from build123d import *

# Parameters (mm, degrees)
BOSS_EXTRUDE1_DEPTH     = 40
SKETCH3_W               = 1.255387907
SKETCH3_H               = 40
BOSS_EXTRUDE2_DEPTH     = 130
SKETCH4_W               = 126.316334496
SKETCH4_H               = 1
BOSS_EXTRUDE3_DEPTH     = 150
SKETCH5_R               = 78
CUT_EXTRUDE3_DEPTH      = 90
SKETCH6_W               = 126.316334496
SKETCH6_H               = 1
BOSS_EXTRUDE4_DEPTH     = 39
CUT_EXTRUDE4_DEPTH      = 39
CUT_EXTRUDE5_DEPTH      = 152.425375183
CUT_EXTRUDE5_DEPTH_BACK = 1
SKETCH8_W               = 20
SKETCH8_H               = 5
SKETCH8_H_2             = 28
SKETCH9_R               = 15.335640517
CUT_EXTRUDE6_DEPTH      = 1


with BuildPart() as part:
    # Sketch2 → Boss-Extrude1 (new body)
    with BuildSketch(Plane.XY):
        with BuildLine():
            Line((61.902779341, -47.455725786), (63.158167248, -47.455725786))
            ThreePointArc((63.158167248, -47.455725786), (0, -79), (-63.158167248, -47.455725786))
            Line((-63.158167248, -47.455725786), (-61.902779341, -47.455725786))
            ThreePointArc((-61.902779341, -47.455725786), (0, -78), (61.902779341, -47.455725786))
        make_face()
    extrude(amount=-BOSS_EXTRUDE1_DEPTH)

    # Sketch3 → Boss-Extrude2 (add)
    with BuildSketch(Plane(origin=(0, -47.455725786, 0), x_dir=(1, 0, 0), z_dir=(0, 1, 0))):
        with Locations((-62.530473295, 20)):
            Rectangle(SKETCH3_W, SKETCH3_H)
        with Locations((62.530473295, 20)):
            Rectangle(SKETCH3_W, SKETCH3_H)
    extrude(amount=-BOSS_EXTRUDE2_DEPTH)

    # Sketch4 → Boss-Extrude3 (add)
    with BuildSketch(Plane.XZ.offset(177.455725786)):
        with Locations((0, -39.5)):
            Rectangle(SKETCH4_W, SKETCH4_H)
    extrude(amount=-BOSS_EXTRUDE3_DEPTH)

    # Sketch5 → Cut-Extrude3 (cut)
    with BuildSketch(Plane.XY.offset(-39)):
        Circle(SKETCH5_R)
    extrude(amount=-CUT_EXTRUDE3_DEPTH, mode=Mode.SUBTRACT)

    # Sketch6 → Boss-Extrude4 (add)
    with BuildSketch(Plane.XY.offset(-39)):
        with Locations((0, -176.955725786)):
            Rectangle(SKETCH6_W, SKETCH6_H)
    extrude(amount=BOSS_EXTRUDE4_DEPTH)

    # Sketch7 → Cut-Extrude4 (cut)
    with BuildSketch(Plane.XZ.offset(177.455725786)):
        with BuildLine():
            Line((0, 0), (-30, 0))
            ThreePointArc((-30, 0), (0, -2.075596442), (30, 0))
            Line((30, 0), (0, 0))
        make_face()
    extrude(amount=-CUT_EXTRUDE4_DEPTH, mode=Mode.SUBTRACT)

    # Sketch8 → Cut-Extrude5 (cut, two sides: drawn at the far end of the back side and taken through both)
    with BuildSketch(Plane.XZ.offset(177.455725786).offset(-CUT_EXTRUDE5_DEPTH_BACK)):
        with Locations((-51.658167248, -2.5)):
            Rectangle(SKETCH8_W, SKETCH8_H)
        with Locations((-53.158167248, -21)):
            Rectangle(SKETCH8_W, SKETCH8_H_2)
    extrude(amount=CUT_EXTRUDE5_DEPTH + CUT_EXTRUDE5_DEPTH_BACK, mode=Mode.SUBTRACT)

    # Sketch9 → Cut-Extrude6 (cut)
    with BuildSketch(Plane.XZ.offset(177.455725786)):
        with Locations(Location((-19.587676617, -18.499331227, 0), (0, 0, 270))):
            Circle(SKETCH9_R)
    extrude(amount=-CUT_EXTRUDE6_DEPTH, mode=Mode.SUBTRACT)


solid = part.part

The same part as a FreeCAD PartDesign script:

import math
import FreeCAD as App
import Part
import Sketcher


def add_polygon(sketch, points):
    """Adds a closed chain of lines whose ends are joined by coincident constraints."""
    first, n = sketch.GeometryCount, len(points)
    for a, b in zip(points, points[1:] + points[:1]):
        sketch.addGeometry(Part.LineSegment(App.Vector(*a, 0), App.Vector(*b, 0)), False)
    for i in range(n):
        sketch.addConstraint(Sketcher.Constraint("Coincident", first + i, 2, first + (i + 1) % n, 1))

doc = App.newDocument("Part")
body = doc.addObject("PartDesign::Body", "Body")

# Sketch on XY plane
sketch1 = body.newObject("Sketcher::SketchObject", "Sketch")
sketch1.AttachmentSupport = (doc.getObject("XY_Plane"), [""])
sketch1.MapMode = "FlatFace"
sketch1.addGeometry([
    Part.LineSegment(App.Vector(63.158167, -47.455726, 0), App.Vector(61.902779, -47.455726, 0)),
    Part.ArcOfCircle(Part.Circle(App.Vector(0, 0, 0), App.Vector(0, 0, 1), 78), math.radians(-142.525611), math.radians(-37.474389)),
    Part.LineSegment(App.Vector(-61.902779, -47.455726, 0), App.Vector(-63.158167, -47.455726, 0)),
    Part.ArcOfCircle(Part.Circle(App.Vector(0, 0, 0), App.Vector(0, 0, 1), 79), math.radians(-143.079566), math.radians(-36.920434)),
], False)
sketch1.addConstraint([
    Sketcher.Constraint("Coincident", 0, 2, 1, 2),
    Sketcher.Constraint("Coincident", 1, 1, 2, 1),
    Sketcher.Constraint("Coincident", 2, 2, 3, 1),
    Sketcher.Constraint("Coincident", 3, 2, 0, 1),
    Sketcher.Constraint("Horizontal", 0),
    Sketcher.Constraint("Horizontal", 2),
    Sketcher.Constraint("Coincident", 1, 3, -1, 1),
    Sketcher.Constraint("Coincident", 3, 3, -1, 1),
    Sketcher.Constraint("Horizontal", 0, 2, 1, 1),
    Sketcher.Constraint("Radius", 1, 78.0),
    Sketcher.Constraint("Radius", 3, 79.0),
    Sketcher.Constraint("DistanceX", 0, 2, 0, 1, 1.255388),
])
pad1 = body.newObject("PartDesign::Pad", "Pad")
pad1.Profile = sketch1
pad1.Length = 40
pad1.Reversed = True

# Sketch on XZ plane
sketch2 = body.newObject("Sketcher::SketchObject", "Sketch001")
sketch2.AttachmentSupport = (doc.getObject("XZ_Plane"), [""])
sketch2.MapMode = "FlatFace"
sketch2.AttachmentOffset = App.Placement(App.Vector(0, 0, 47.455726), App.Rotation())
add_polygon(sketch2, [(-63.2, -40), (-63.2, 0), (-61.9, 0), (-61.9, -40)])  # lines 0-3
add_polygon(sketch2, [(61.9, -40), (61.9, 0), (63.2, 0), (63.2, -40)])  # lines 4-7
sketch2.addConstraint([
    Sketcher.Constraint("Vertical", 0),
    Sketcher.Constraint("Horizontal", 1),
    Sketcher.Constraint("Vertical", 2),
    Sketcher.Constraint("Horizontal", 3),
    Sketcher.Constraint("Vertical", 4),
    Sketcher.Constraint("Horizontal", 5),
    Sketcher.Constraint("Vertical", 6),
    Sketcher.Constraint("Horizontal", 7),
    Sketcher.Constraint("Symmetric", 1, 2, 4, 2, -1, 1),
    Sketcher.Constraint("Symmetric", 0, 2, 5, 2, -2),
    Sketcher.Constraint("Horizontal", 3, 2, 6, 2),
    Sketcher.Constraint("DistanceY", 0, 1, 0, 2, 40.0),
    Sketcher.Constraint("DistanceX", 1, 1, 1, 2, 1.255388),
    Sketcher.Constraint("DistanceX", 1, 2, -1, 1, 61.902779),
])
pad2 = body.newObject("PartDesign::Pad", "Pad001")
pad2.Profile = sketch2
pad2.Length = 130

# Sketch on XZ plane
sketch3 = body.newObject("Sketcher::SketchObject", "Sketch002")
sketch3.AttachmentSupport = (doc.getObject("XZ_Plane"), [""])
sketch3.MapMode = "FlatFace"
sketch3.AttachmentOffset = App.Placement(App.Vector(0, 0, 177.455726), App.Rotation())
add_polygon(sketch3, [(-63.2, -39), (-63.2, -40), (63.2, -40), (63.2, -39)])  # lines 0-3
sketch3.addConstraint([
    Sketcher.Constraint("Vertical", 0),
    Sketcher.Constraint("Horizontal", 1),
    Sketcher.Constraint("Vertical", 2),
    Sketcher.Constraint("Horizontal", 3),
    Sketcher.Constraint("DistanceY", 0, 2, 0, 1, 1.0),
    Sketcher.Constraint("DistanceY", 0, 2, -1, 1, 40.0),
    Sketcher.Constraint("DistanceX", 1, 1, 1, 2, 126.316334),
    Sketcher.Constraint("DistanceX", 0, 2, -1, 1, 63.158167),
])
pad3 = body.newObject("PartDesign::Pad", "Pad002")
pad3.Profile = sketch3
pad3.Length = 150
pad3.Reversed = True

# Sketch on XY plane
sketch4 = body.newObject("Sketcher::SketchObject", "Sketch003")
sketch4.AttachmentSupport = (doc.getObject("XY_Plane"), [""])
sketch4.MapMode = "FlatFace"
sketch4.AttachmentOffset = App.Placement(App.Vector(0, 0, -39), App.Rotation())
sketch4.addGeometry(Part.Circle(App.Vector(0, 0, 0), App.Vector(0, 0, 1), 78), False)
sketch4.addConstraint([
    Sketcher.Constraint("Coincident", 0, 3, -1, 1),
    Sketcher.Constraint("Diameter", 0, 156.0),
])
pocket1 = body.newObject("PartDesign::Pocket", "Pocket")
pocket1.Profile = sketch4
pocket1.Length = 90

# Sketch on XY plane
sketch5 = body.newObject("Sketcher::SketchObject", "Sketch004")
sketch5.AttachmentSupport = (doc.getObject("XY_Plane"), [""])
sketch5.MapMode = "FlatFace"
sketch5.AttachmentOffset = App.Placement(App.Vector(0, 0, -39), App.Rotation())
add_polygon(sketch5, [(-63.2, -176.5), (-63.2, -177.5), (63.2, -177.5), (63.2, -176.5)])  # lines 0-3
sketch5.addConstraint([
    Sketcher.Constraint("Vertical", 0),
    Sketcher.Constraint("Horizontal", 1),
    Sketcher.Constraint("Vertical", 2),
    Sketcher.Constraint("Horizontal", 3),
    Sketcher.Constraint("DistanceY", 0, 2, 0, 1, 1.0),
    Sketcher.Constraint("DistanceX", 1, 1, 1, 2, 126.316334),
    Sketcher.Constraint("DistanceX", 0, 2, -1, 1, 63.158167),
    Sketcher.Constraint("DistanceY", 0, 2, -1, 1, 177.455726),
])
pad4 = body.newObject("PartDesign::Pad", "Pad003")
pad4.Profile = sketch5
pad4.Length = 39

# Sketch on XZ plane
sketch6 = body.newObject("Sketcher::SketchObject", "Sketch005")
sketch6.AttachmentSupport = (doc.getObject("XZ_Plane"), [""])
sketch6.MapMode = "FlatFace"
sketch6.AttachmentOffset = App.Placement(App.Vector(0, 0, 177.455726), App.Rotation())
sketch6.addGeometry([
    Part.ArcOfCircle(Part.Circle(App.Vector(0, 216, 0), App.Vector(0, 0, 1), 218), math.radians(-97.92), math.radians(-82.08)),
    Part.LineSegment(App.Vector(30, 0, 0), App.Vector(-30, 0, 0)),
], False)
sketch6.addConstraint([
    Sketcher.Constraint("Coincident", 0, 1, 1, 2),
    Sketcher.Constraint("Coincident", 1, 1, 0, 2),
    Sketcher.Constraint("Horizontal", 1),
    Sketcher.Constraint("Symmetric", 0, 1, 1, 1, -1, 1),
    Sketcher.Constraint("DistanceX", 1, 2, 1, 1, 60.0),
    Sketcher.Constraint("Radius", 0, 217.842949),
])
pocket2 = body.newObject("PartDesign::Pocket", "Pocket001")
pocket2.Profile = sketch6
pocket2.Length = 39

# Sketch on XZ plane
sketch7 = body.newObject("Sketcher::SketchObject", "Sketch006")
sketch7.AttachmentSupport = (doc.getObject("XZ_Plane"), [""])
sketch7.MapMode = "FlatFace"
sketch7.AttachmentOffset = App.Placement(App.Vector(0, 0, 177.455726), App.Rotation())
add_polygon(sketch7, [(-62, 0), (-62, -5), (-42, -5), (-42, 0)])  # lines 0-3
add_polygon(sketch7, [(-63, -7), (-63, -35), (-43, -35), (-43, -7)])  # lines 4-7
sketch7.addConstraint([
    Sketcher.Constraint("Vertical", 0),
    Sketcher.Constraint("Horizontal", 1),
    Sketcher.Constraint("Vertical", 2),
    Sketcher.Constraint("Horizontal", 3),
    Sketcher.Constraint("Vertical", 4),
    Sketcher.Constraint("Horizontal", 5),
    Sketcher.Constraint("Vertical", 6),
    Sketcher.Constraint("Horizontal", 7),
    Sketcher.Constraint("PointOnObject", 2, 2, -1),
    Sketcher.Constraint("Equal", 3, 5),
    Sketcher.Constraint("DistanceX", 1, 1, 1, 2, 20.0),
    Sketcher.Constraint("DistanceY", 0, 2, 0, 1, 5.0),
    Sketcher.Constraint("DistanceY", 4, 2, 4, 1, 28.0),
    Sketcher.Constraint("DistanceY", 4, 2, -1, 1, 35.0),
    Sketcher.Constraint("DistanceX", 4, 2, 0, 2, 1.5),
    Sketcher.Constraint("DistanceX", 0, 2, -1, 1, 61.658167),
])
pocket3 = body.newObject("PartDesign::Pocket", "Pocket002")
pocket3.Profile = sketch7
pocket3.Type = "TwoLengths"
pocket3.Length = 152.425375
pocket3.Length2 = 1
pocket3.Reversed = True

# Sketch on XZ plane
sketch8 = body.newObject("Sketcher::SketchObject", "Sketch007")
sketch8.AttachmentSupport = (doc.getObject("XZ_Plane"), [""])
sketch8.MapMode = "FlatFace"
sketch8.AttachmentOffset = App.Placement(App.Vector(0, 0, 177.455726), App.Rotation())
sketch8.addGeometry(Part.Circle(App.Vector(-20, -18, 0), App.Vector(0, 0, 1), 15), False)
sketch8.addConstraint([
    Sketcher.Constraint("Diameter", 0, 30.671281),
    Sketcher.Constraint("DistanceY", 0, 3, -1, 1, 18.499331),
    Sketcher.Constraint("DistanceX", 0, 3, -1, 1, 19.587677),
])
pocket4 = body.newObject("PartDesign::Pocket", "Pocket003")
pocket4.Profile = sketch8
pocket4.Length = 1

doc.recompute()
